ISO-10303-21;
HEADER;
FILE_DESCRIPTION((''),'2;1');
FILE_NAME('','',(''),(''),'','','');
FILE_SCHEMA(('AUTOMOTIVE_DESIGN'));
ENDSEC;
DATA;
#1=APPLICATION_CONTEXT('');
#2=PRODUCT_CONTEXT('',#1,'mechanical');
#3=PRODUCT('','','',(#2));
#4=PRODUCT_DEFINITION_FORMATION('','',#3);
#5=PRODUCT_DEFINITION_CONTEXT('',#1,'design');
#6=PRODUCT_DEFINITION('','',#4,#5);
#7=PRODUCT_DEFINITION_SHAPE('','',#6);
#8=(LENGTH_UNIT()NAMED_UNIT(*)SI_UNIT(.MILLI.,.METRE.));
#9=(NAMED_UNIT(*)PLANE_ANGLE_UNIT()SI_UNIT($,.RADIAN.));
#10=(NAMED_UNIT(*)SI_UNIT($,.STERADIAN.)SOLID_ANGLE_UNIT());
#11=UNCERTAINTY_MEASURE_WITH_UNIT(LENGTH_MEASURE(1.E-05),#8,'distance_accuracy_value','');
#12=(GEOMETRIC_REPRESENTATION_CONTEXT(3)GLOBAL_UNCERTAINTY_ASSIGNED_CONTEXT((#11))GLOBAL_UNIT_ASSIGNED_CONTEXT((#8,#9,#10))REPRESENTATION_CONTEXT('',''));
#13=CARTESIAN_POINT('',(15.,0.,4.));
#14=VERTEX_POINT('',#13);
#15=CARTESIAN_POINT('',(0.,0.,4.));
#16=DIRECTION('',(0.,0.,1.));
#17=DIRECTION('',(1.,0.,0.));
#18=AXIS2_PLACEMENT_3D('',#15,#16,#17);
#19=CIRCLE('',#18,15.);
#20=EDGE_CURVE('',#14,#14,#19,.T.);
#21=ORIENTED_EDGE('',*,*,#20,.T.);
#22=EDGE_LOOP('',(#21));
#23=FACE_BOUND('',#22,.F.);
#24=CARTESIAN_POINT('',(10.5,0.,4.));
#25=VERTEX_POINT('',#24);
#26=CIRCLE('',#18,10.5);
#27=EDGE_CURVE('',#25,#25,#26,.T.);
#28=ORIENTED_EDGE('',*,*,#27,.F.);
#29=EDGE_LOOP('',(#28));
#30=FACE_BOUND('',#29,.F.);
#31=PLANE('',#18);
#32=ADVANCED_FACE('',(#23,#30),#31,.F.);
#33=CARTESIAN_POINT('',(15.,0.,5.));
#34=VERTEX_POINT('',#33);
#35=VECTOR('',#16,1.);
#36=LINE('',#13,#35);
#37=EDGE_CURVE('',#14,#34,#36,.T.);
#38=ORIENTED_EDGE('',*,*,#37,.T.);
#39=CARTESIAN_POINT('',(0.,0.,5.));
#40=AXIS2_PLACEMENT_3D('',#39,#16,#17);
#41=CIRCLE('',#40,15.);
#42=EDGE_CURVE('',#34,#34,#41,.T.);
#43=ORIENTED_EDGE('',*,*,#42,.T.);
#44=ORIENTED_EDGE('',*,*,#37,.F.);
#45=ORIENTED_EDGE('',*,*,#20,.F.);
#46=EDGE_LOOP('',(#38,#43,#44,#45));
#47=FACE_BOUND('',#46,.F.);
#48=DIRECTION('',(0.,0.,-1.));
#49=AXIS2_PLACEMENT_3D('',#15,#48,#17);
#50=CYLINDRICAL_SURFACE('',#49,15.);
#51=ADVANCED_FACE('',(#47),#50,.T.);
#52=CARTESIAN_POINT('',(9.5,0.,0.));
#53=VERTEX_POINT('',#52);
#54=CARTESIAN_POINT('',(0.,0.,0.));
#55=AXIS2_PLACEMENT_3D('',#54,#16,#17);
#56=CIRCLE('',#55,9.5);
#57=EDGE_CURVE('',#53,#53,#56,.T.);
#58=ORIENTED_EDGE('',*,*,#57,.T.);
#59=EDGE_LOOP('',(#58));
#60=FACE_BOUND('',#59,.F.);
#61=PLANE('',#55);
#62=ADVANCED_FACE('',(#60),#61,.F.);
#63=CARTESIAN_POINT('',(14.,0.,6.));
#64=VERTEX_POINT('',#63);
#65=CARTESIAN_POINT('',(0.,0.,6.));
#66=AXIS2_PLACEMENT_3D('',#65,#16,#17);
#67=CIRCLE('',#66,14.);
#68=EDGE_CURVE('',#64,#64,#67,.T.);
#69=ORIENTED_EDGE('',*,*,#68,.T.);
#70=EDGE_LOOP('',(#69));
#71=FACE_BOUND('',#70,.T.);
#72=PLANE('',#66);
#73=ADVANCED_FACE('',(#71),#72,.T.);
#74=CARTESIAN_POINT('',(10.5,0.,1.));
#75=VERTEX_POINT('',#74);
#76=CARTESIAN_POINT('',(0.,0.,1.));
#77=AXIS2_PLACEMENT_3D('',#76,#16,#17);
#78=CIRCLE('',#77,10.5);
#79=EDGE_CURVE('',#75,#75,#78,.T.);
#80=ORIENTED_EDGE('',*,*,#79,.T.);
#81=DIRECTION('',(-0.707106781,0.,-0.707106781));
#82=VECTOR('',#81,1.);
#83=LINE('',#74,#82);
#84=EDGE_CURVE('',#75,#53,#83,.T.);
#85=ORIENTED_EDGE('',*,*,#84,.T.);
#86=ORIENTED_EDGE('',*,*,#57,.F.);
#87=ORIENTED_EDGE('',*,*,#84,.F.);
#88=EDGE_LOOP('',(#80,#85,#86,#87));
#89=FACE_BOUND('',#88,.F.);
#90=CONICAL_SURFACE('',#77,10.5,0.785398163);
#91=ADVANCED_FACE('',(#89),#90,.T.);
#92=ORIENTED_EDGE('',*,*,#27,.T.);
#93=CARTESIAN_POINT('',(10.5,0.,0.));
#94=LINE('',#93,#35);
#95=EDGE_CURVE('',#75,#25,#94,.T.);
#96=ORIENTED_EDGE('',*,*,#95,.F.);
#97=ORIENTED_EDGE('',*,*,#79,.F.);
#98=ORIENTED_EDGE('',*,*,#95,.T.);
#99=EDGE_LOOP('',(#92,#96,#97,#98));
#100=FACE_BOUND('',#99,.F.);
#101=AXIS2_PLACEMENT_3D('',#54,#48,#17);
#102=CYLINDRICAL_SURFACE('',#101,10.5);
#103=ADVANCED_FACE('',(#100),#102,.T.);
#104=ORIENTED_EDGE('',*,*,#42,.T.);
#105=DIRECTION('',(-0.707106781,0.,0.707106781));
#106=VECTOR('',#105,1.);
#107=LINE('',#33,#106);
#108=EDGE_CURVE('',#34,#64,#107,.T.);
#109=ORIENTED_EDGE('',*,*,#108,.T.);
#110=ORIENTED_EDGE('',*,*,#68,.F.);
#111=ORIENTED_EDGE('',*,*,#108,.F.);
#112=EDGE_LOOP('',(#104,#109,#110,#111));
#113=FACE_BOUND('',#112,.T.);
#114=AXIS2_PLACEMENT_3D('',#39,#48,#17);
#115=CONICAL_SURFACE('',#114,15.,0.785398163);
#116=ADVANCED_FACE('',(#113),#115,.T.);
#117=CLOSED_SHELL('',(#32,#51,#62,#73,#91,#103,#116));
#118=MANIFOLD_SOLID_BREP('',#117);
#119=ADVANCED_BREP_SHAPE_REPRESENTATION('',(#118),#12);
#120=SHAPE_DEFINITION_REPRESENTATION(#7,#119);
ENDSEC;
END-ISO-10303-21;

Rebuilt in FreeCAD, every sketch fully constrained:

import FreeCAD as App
import Part
import Sketcher
Q = App.Units.Quantity


def edges_at(feature, points):
    """Names of the edges that pass closest to the given points."""
    edges = feature.Shape.Edges
    near = lambda p: min(range(len(edges)), key=lambda i: edges[i].distToShape(Part.Vertex(*p))[0])
    return sorted({f"Edge{near(p) + 1}" for p in points})

doc = App.newDocument("Part")
params = doc.addObject("Spreadsheet::Sheet", "Params")
for row, (alias, value) in enumerate([
    ("sketch1_diameter", "21 mm"),
    ("pad1_length", "4 mm"),
    ("sketch2_diameter", "30 mm"),
    ("pad2_length", "2 mm"),
    ("chamfer_size", "1 mm"),
    ("chamfer2_size", "1 mm"),
], start=1):
    params.set(f"A{row}", alias)
    params.set(f"B{row}", "=" + value)
    params.setAlias(f"B{row}", alias)

body = doc.addObject("PartDesign::Body", "Body")

# Sketch on XY plane
sketch1 = body.newObject("Sketcher::SketchObject", "Sketch")
sketch1.AttachmentSupport = (doc.getObject("XY_Plane"), [""])
sketch1.MapMode = "FlatFace"
sketch1.addGeometry(Part.Circle(App.Vector(0, 0, 0), App.Vector(0, 0, 1), 10.5), False)
sketch1.addConstraint(Sketcher.Constraint("Coincident", 0, 3, -1, 1))
sketch1.addConstraint(Sketcher.Constraint("Diameter", 0, Q("21 mm")))
sketch1.setExpression("Constraints[1]", "Params.sketch1_diameter")
pad1 = body.newObject("PartDesign::Pad", "Pad")
pad1.Profile = sketch1
pad1.setExpression("Length", "Params.pad1_length")

# Sketch on XY plane
sketch2 = body.newObject("Sketcher::SketchObject", "Sketch001")
sketch2.AttachmentSupport = (doc.getObject("XY_Plane"), [""])
sketch2.MapMode = "FlatFace"
sketch2.AttachmentOffset = App.Placement(App.Vector(0, 0, 4), App.Rotation())
sketch2.addGeometry(Part.Circle(App.Vector(0, 0, 0), App.Vector(0, 0, 1), 15), False)
sketch2.addConstraint(Sketcher.Constraint("Coincident", 0, 3, -1, 1))
sketch2.addConstraint(Sketcher.Constraint("Diameter", 0, Q("30 mm")))
sketch2.setExpression("Constraints[1]", "Params.sketch2_diameter")
pad2 = body.newObject("PartDesign::Pad", "Pad001")
pad2.Profile = sketch2
pad2.setExpression("Length", "Params.pad2_length")
doc.recompute()

chamfer = body.newObject("PartDesign::Chamfer", "Chamfer")
chamfer.Base = (pad2, edges_at(pad2, [(-15, 0, 6)]))
chamfer.setExpression("Size", "Params.chamfer_size")
doc.recompute()

chamfer2 = body.newObject("PartDesign::Chamfer", "Chamfer001")
chamfer2.Base = (chamfer, edges_at(chamfer, [(-10.5, 0, 0)]))
chamfer2.setExpression("Size", "Params.chamfer2_size")

doc.recompute()
